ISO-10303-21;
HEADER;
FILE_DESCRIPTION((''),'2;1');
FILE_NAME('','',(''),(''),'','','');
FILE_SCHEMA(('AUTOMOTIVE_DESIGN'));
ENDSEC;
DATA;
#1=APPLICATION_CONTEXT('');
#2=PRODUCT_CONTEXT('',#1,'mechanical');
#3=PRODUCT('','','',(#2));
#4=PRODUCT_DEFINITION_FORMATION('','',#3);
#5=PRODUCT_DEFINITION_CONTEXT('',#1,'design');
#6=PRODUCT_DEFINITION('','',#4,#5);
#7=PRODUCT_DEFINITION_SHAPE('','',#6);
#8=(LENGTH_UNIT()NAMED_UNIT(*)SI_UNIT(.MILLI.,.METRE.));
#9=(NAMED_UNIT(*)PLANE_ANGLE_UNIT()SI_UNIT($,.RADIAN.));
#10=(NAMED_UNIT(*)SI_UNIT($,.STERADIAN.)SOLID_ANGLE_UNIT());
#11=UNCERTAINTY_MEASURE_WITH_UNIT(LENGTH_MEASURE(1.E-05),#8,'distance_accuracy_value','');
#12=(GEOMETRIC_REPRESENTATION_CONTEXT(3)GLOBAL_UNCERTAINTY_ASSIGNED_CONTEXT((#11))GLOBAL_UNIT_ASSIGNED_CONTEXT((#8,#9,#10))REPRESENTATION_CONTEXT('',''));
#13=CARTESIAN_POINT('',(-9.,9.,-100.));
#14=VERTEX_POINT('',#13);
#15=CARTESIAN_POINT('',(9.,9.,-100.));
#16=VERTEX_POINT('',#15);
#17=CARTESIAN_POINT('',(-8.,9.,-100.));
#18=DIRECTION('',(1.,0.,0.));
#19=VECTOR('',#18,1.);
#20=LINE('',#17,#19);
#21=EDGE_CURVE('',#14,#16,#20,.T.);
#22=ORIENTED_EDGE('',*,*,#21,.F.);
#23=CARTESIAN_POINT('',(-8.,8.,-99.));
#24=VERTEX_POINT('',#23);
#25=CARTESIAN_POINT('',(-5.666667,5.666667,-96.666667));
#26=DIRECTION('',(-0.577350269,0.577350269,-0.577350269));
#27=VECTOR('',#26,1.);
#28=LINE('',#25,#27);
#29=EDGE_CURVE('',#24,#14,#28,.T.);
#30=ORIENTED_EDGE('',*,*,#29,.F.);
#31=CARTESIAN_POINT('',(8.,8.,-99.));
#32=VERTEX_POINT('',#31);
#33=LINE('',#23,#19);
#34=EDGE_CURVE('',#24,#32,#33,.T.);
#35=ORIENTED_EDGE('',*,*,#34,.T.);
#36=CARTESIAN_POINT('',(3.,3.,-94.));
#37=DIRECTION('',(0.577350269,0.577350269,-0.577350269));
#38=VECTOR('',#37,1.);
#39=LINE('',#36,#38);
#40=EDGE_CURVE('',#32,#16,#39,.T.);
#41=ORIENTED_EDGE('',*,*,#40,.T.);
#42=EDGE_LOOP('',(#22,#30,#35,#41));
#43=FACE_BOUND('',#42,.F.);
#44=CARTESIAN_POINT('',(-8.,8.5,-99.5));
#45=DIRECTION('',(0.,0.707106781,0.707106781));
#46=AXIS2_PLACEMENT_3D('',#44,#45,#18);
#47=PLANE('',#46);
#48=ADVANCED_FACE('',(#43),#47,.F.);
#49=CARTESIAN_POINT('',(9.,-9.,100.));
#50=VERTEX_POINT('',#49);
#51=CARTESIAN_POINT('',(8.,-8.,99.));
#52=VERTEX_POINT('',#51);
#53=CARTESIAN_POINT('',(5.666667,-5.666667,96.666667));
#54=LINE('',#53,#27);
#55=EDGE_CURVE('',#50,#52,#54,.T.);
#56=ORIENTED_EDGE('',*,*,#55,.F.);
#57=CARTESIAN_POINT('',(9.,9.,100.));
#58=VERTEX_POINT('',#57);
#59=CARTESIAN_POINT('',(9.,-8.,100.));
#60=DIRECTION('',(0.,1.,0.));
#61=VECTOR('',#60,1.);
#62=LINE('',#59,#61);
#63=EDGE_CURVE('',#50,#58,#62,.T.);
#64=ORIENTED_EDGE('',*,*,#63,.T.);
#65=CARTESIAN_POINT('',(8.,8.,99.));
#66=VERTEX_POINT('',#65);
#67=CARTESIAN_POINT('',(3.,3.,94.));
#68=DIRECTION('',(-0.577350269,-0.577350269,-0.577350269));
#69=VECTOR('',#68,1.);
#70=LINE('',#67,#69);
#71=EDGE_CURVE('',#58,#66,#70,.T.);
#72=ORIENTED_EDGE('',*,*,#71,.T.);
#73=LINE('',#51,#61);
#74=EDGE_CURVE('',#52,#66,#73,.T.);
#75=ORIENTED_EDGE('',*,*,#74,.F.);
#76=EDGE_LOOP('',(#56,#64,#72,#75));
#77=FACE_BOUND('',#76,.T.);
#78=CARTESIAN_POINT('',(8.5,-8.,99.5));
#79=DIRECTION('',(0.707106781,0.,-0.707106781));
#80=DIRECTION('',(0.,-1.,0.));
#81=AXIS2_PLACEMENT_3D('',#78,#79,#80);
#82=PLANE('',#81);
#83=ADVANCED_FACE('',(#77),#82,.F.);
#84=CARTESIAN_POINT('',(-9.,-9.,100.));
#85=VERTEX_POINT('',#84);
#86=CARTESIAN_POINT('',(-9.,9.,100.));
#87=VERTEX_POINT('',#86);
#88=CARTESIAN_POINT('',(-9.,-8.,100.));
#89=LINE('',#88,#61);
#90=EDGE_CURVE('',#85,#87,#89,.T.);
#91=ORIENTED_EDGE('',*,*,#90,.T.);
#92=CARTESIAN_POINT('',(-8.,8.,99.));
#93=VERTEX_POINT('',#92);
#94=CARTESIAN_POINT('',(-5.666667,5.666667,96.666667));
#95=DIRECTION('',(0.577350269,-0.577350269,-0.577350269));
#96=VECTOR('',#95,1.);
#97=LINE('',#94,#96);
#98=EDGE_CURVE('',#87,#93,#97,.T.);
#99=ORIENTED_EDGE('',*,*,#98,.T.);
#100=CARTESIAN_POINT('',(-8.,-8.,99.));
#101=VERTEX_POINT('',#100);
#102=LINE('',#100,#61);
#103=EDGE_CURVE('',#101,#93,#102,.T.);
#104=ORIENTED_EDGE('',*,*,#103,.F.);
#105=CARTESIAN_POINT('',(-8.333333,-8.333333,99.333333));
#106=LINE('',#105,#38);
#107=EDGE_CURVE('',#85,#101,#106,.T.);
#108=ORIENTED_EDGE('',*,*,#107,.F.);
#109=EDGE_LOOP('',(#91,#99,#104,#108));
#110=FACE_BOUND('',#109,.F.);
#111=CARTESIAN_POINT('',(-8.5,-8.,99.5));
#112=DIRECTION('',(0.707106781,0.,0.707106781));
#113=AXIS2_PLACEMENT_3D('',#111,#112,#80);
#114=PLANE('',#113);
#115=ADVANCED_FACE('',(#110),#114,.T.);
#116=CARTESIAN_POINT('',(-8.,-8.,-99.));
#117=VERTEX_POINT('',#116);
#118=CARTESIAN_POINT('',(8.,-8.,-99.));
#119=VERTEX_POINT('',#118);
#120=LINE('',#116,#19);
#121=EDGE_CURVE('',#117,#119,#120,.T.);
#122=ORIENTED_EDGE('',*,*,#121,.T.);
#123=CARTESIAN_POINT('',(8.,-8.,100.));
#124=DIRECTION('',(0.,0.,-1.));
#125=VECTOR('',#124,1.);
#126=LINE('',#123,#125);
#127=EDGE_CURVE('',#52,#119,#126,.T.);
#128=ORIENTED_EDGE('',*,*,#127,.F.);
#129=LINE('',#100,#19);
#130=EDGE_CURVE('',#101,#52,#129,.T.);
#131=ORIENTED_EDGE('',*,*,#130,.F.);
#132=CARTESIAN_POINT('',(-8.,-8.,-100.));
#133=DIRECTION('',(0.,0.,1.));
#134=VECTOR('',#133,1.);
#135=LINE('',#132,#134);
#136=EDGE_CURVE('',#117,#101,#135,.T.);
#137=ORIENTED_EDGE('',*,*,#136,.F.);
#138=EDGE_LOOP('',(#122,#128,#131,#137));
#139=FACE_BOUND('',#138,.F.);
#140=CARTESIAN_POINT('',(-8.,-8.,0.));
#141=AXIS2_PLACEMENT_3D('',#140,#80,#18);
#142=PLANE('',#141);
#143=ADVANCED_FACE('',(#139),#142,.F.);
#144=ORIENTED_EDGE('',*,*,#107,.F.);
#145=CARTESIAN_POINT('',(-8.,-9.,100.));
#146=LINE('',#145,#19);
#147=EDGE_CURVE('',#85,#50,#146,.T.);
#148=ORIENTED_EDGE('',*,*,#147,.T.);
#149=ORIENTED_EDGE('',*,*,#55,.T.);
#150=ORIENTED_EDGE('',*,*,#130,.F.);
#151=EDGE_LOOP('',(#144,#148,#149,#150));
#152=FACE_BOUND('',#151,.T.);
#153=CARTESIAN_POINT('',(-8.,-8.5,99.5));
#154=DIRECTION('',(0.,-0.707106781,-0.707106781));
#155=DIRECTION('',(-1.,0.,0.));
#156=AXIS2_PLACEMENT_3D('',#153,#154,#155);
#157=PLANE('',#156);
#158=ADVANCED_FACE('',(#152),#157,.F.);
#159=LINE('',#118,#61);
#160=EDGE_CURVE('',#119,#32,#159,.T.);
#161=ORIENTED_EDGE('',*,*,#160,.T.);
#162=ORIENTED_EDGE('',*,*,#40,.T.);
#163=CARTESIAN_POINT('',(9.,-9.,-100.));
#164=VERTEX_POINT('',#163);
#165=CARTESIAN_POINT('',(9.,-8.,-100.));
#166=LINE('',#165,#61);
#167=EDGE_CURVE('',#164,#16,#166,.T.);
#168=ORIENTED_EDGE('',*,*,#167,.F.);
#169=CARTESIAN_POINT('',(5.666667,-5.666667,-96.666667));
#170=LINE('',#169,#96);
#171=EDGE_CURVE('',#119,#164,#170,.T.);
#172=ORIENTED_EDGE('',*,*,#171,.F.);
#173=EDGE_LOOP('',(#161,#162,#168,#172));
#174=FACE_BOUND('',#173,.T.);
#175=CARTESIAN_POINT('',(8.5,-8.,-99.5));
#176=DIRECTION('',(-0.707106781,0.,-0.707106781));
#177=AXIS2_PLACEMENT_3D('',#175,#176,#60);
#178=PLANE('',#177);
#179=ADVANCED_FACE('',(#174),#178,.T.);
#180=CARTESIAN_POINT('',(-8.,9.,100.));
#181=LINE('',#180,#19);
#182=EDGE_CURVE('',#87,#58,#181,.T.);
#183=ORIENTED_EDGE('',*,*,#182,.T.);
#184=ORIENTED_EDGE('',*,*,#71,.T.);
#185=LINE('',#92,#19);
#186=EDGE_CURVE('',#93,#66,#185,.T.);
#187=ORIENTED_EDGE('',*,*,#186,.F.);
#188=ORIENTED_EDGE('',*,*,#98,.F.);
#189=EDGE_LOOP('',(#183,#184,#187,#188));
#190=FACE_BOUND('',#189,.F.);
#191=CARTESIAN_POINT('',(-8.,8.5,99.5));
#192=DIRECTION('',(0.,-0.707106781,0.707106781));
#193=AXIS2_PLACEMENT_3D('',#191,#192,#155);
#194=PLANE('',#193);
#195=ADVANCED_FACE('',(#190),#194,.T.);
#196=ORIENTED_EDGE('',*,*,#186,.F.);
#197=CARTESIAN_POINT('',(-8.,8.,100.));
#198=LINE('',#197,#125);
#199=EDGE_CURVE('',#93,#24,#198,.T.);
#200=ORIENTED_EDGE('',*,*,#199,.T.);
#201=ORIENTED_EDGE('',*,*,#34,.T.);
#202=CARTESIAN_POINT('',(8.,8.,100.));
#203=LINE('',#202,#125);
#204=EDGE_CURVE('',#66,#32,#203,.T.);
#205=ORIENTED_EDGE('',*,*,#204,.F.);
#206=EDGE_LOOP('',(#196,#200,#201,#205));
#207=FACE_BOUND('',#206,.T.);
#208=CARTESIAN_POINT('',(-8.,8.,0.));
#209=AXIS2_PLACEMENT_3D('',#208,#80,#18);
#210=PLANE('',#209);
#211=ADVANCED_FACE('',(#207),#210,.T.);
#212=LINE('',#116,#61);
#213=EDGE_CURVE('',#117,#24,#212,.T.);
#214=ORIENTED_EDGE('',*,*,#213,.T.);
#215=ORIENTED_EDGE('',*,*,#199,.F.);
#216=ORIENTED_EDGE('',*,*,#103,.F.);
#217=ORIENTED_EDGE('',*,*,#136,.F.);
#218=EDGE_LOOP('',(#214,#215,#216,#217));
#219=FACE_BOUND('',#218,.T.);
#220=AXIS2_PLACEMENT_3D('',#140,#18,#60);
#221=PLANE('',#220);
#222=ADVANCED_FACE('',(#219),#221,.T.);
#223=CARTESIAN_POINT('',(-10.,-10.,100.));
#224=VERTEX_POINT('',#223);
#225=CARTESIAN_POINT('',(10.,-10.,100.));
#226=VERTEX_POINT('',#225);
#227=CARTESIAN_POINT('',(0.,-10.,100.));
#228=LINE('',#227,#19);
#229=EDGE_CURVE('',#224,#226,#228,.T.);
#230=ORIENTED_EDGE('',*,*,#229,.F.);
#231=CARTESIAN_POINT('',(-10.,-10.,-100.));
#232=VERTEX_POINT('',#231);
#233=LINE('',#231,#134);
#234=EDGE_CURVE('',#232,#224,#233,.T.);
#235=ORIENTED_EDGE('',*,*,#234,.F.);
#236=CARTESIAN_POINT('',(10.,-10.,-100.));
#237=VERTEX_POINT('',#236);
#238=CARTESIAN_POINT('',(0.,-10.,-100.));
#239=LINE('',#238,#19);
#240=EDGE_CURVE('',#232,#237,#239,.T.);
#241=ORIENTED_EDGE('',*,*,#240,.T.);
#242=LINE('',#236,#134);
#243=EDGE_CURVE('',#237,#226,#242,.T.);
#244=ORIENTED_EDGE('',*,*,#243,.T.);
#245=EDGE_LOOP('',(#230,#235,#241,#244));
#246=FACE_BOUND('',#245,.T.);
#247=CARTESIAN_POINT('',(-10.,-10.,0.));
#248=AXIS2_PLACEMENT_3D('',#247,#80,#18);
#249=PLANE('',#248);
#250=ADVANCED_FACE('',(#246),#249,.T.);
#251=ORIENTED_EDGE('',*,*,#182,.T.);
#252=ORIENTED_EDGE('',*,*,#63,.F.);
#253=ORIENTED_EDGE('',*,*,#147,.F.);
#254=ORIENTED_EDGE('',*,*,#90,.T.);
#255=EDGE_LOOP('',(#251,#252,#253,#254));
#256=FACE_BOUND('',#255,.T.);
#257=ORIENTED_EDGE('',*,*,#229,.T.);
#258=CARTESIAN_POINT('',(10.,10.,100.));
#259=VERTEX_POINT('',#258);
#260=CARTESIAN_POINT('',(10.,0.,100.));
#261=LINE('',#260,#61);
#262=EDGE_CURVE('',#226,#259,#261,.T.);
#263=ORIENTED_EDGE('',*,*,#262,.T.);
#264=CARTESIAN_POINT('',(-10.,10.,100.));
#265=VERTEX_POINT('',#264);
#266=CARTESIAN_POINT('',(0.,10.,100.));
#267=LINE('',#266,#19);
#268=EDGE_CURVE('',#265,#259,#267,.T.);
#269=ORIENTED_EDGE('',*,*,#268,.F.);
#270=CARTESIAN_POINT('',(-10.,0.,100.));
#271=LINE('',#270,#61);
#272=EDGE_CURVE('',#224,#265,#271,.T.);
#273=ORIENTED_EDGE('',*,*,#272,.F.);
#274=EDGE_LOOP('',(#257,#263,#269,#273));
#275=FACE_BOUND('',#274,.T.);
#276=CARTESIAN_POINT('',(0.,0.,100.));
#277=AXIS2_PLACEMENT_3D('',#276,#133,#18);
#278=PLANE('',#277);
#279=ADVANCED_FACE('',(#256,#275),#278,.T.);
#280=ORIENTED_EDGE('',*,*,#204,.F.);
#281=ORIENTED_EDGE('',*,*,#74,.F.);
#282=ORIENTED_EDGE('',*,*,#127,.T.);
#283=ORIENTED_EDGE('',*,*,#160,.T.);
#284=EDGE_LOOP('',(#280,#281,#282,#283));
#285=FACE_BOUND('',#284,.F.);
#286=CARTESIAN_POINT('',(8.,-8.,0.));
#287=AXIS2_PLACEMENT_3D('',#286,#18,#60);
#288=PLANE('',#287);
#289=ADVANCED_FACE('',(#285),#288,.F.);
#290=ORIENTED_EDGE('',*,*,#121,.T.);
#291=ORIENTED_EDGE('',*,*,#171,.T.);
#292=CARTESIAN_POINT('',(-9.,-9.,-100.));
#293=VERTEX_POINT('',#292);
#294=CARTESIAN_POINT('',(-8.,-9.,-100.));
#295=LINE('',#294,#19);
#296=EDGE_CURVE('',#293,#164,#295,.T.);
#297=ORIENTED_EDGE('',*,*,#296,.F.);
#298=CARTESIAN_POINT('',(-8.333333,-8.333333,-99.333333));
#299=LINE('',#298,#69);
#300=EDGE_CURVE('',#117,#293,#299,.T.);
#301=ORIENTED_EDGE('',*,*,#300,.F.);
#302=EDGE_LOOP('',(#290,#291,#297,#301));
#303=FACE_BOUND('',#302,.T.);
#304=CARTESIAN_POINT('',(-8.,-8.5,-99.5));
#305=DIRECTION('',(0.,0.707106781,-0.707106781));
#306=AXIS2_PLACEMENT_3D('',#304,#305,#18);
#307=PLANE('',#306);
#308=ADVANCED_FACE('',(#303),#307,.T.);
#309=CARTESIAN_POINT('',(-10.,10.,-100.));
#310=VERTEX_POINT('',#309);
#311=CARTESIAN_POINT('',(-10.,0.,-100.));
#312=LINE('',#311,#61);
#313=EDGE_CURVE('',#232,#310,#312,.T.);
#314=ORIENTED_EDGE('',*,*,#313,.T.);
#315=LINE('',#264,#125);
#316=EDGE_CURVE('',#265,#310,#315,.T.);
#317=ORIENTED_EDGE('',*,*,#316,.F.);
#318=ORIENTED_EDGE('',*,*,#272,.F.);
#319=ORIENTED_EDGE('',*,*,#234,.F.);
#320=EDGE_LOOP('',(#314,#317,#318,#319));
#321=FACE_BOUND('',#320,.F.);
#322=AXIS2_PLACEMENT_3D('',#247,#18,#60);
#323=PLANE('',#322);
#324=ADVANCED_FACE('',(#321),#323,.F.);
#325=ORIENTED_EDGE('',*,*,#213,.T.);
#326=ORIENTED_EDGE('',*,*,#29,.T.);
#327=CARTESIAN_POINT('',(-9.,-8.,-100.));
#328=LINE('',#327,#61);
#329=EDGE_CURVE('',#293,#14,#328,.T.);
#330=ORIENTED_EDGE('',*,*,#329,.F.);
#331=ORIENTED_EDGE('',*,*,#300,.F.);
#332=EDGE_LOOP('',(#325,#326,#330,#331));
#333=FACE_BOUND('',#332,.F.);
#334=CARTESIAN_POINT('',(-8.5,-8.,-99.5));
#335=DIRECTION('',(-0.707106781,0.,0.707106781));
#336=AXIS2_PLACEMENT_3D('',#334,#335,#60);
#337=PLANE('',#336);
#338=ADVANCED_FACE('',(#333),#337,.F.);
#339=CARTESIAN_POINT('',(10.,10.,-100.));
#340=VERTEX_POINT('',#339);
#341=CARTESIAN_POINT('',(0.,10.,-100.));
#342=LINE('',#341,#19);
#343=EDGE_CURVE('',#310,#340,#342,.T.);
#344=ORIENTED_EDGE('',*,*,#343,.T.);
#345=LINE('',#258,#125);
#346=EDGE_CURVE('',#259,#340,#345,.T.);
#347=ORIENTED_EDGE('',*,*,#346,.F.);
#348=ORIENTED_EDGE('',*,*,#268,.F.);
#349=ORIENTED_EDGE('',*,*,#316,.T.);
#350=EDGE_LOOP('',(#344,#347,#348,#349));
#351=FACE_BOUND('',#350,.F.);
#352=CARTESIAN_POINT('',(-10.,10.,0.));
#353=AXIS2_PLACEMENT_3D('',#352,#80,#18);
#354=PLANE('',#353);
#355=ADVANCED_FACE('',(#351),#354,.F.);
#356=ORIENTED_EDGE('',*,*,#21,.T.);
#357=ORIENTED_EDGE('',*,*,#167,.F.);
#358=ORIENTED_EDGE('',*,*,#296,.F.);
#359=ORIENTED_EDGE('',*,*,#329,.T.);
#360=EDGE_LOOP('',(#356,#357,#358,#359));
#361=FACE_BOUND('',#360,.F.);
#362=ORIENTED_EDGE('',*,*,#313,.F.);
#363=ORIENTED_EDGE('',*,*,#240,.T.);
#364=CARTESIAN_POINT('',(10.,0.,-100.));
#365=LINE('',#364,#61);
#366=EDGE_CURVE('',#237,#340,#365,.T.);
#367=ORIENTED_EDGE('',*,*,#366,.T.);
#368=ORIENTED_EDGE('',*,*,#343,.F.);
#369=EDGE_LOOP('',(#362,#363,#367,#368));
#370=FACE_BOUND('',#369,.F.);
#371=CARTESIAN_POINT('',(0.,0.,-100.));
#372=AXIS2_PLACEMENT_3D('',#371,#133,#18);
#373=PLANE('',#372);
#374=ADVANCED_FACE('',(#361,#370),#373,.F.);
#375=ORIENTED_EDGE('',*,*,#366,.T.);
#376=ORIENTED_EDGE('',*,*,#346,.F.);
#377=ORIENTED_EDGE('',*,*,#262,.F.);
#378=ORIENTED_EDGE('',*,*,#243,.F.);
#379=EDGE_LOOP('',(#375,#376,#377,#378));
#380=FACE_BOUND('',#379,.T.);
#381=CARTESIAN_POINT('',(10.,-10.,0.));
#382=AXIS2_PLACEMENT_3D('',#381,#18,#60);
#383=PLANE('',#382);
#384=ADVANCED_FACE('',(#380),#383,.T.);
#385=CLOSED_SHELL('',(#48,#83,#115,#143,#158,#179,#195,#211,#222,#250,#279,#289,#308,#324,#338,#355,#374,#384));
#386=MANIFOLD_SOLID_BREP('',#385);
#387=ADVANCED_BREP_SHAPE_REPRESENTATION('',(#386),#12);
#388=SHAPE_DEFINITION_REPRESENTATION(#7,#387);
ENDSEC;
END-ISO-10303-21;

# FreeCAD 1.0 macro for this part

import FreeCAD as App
import Part
import Sketcher
from FreeCAD import Vector
Q = App.Units.Quantity


def edges_at(feature, points):
    """Names of the edges that pass closest to the given points."""
    edges = feature.Shape.Edges
    near = lambda p: min(range(len(edges)), key=lambda i: edges[i].distToShape(Part.Vertex(*p))[0])
    return sorted({f"Edge{near(p) + 1}" for p in points})

doc = App.newDocument("Part")
params = doc.addObject("Spreadsheet::Sheet", "Params")
for row, (alias, value) in enumerate([
    ("sketch1_width", "20 mm"),
    ("sketch1_width2", "16 mm"),
    ("pad1_length", "200 mm"),
    ("chamfer_size", "1 mm"),
], start=1):
    params.set(f"A{row}", alias)
    params.set(f"B{row}", "=" + value)
    params.setAlias(f"B{row}", alias)

body = doc.addObject("PartDesign::Body", "Body")

sketch1 = body.newObject("Sketcher::SketchObject", "Sketch")
sketch1.AttachmentSupport = (doc.getObject("XY_Plane"), [""])
sketch1.MapMode = "FlatFace"
sketch1.addGeometry(Part.LineSegment(Vector(-10, 10, 0), Vector(-10, -10, 0)), False)
sketch1.addGeometry(Part.LineSegment(Vector(-10, -10, 0), Vector(10, -10, 0)), False)
sketch1.addGeometry(Part.LineSegment(Vector(10, -10, 0), Vector(10, 10, 0)), False)
sketch1.addGeometry(Part.LineSegment(Vector(10, 10, 0), Vector(-10, 10, 0)), False)
sketch1.addGeometry(Part.LineSegment(Vector(8, -8, 0), Vector(-8, -8, 0)), False)
sketch1.addGeometry(Part.LineSegment(Vector(-8, -8, 0), Vector(-8, 8, 0)), False)
sketch1.addGeometry(Part.LineSegment(Vector(-8, 8, 0), Vector(8, 8, 0)), False)
sketch1.addGeometry(Part.LineSegment(Vector(8, 8, 0), Vector(8, -8, 0)), False)
sketch1.addConstraint(Sketcher.Constraint("Coincident", 0, 2, 1, 1))
sketch1.addConstraint(Sketcher.Constraint("Coincident", 1, 2, 2, 1))
sketch1.addConstraint(Sketcher.Constraint("Coincident", 2, 2, 3, 1))
sketch1.addConstraint(Sketcher.Constraint("Coincident", 3, 2, 0, 1))
sketch1.addConstraint(Sketcher.Constraint("Coincident", 4, 2, 5, 1))
sketch1.addConstraint(Sketcher.Constraint("Coincident", 5, 2, 6, 1))
sketch1.addConstraint(Sketcher.Constraint("Coincident", 6, 2, 7, 1))
sketch1.addConstraint(Sketcher.Constraint("Coincident", 7, 2, 4, 1))
sketch1.addConstraint(Sketcher.Constraint("Vertical", 0))
sketch1.addConstraint(Sketcher.Constraint("Horizontal", 1))
sketch1.addConstraint(Sketcher.Constraint("Vertical", 2))
sketch1.addConstraint(Sketcher.Constraint("Horizontal", 3))
sketch1.addConstraint(Sketcher.Constraint("Horizontal", 4))
sketch1.addConstraint(Sketcher.Constraint("Vertical", 5))
sketch1.addConstraint(Sketcher.Constraint("Horizontal", 6))
sketch1.addConstraint(Sketcher.Constraint("Vertical", 7))
sketch1.addConstraint(Sketcher.Constraint("Symmetric", 0, 2, 2, 2, -1, 1))
sketch1.addConstraint(Sketcher.Constraint("Symmetric", 4, 2, 6, 2, -1, 1))
sketch1.addConstraint(Sketcher.Constraint("Equal", 3, 0))
sketch1.addConstraint(Sketcher.Constraint("Equal", 6, 5))
sketch1.addConstraint(Sketcher.Constraint("DistanceX", 1, 1, 1, 2, Q("20 mm")))
sketch1.addConstraint(Sketcher.Constraint("DistanceX", 4, 2, 4, 1, Q("16 mm")))
sketch1.setExpression("Constraints[20]", "Params.sketch1_width")
sketch1.setExpression("Constraints[21]", "Params.sketch1_width2")
pad1 = body.newObject("PartDesign::Pad", "Pad")
pad1.Profile = sketch1
pad1.setExpression("Length", "Params.pad1_length")
pad1.Midplane = True
doc.recompute()

chamfer = body.newObject("PartDesign::Chamfer", "Chamfer")
chamfer.Base = (pad1, edges_at(pad1, [
    (0, 8, 100),
    (-8, 0, 100),
    (8, 0, 100),
    (0, -8, 100),
    (0, 8, -100),
    (8, 0, -100),
    (0, -8, -100),
    (-8, 0, -100),
]))
chamfer.setExpression("Size", "Params.chamfer_size")

doc.recompute()
